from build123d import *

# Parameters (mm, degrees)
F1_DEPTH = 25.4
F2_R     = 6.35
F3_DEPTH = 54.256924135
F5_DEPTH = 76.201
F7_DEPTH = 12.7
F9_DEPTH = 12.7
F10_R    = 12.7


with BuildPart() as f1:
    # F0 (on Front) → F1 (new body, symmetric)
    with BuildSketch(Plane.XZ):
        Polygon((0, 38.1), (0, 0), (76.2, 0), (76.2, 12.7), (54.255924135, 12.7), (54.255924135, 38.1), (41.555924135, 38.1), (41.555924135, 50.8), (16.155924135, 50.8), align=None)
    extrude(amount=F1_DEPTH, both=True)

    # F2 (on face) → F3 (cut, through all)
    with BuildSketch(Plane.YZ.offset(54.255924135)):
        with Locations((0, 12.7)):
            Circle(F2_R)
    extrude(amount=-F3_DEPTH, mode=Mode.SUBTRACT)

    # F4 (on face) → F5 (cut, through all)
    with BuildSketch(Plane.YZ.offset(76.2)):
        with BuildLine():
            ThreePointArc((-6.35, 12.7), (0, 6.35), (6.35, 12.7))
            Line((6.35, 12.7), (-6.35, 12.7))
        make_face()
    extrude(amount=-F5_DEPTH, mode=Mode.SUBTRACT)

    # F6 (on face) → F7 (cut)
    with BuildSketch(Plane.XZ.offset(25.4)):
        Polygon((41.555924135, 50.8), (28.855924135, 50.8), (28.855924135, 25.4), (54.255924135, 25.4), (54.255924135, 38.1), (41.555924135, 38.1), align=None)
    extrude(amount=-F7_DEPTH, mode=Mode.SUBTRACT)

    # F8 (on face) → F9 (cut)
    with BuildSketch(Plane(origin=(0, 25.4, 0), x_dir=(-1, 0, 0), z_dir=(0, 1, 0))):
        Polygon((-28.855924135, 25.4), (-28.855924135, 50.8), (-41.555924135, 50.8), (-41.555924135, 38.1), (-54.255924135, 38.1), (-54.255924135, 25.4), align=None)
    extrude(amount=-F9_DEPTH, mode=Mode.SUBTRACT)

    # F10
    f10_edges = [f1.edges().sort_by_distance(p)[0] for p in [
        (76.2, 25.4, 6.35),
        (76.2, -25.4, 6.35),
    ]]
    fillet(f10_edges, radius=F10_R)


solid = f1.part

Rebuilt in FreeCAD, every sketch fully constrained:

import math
import FreeCAD as App
import Part
import Sketcher
from FreeCAD import Vector
Q = App.Units.Quantity


def edges_at(feature, points):
    """Names of the edges that pass closest to the given points."""
    edges = feature.Shape.Edges
    near = lambda p: min(range(len(edges)), key=lambda i: edges[i].distToShape(Part.Vertex(*p))[0])
    return sorted({f"Edge{near(p) + 1}" for p in points})

doc = App.newDocument("Part")
params = doc.addObject("Spreadsheet::Sheet", "Params")
for row, (alias, value) in enumerate([
    ("sketch1_width", "3 in"),
    ("sketch1_width2", "1 in"),
    ("sketch1_width3", "0.5 in"),
    ("pad1_length", "2 in"),
    ("sketch2_diameter", "0.5 in"),
    ("sketch3_radius", "0.25 in"),
    ("sketch4_width", "1 in"),
    ("pocket3_length", "0.5 in"),
    ("sketch5_width", "1 in"),
    ("pocket4_length", "0.5 in"),
    ("fillet_radius", "0.5 in"),
], start=1):
    params.set(f"A{row}", alias)
    params.set(f"B{row}", "=" + value)
    params.setAlias(f"B{row}", alias)

body = doc.addObject("PartDesign::Body", "Body")

# Sketch on XZ plane
sketch1 = body.newObject("Sketcher::SketchObject", "Sketch")
sketch1.AttachmentSupport = (doc.getObject("XZ_Plane"), [""])
sketch1.MapMode = "FlatFace"
sketch1.addGeometry(Part.LineSegment(Vector(0, 38, 0), Vector(0, 0, 0)), False)
sketch1.addGeometry(Part.LineSegment(Vector(0, 0, 0), Vector(76, 0, 0)), False)
sketch1.addGeometry(Part.LineSegment(Vector(76, 0, 0), Vector(76, 13, 0)), False)
sketch1.addGeometry(Part.LineSegment(Vector(76, 13, 0), Vector(54, 13, 0)), False)
sketch1.addGeometry(Part.LineSegment(Vector(54, 13, 0), Vector(54, 38, 0)), False)
sketch1.addGeometry(Part.LineSegment(Vector(54, 38, 0), Vector(42, 38, 0)), False)
sketch1.addGeometry(Part.LineSegment(Vector(42, 38, 0), Vector(42, 51, 0)), False)
sketch1.addGeometry(Part.LineSegment(Vector(42, 51, 0), Vector(16, 51, 0)), False)
sketch1.addGeometry(Part.LineSegment(Vector(16, 51, 0), Vector(0, 38, 0)), False)
sketch1.addConstraint(Sketcher.Constraint("Coincident", 0, 2, 1, 1))
sketch1.addConstraint(Sketcher.Constraint("Coincident", 1, 2, 2, 1))
sketch1.addConstraint(Sketcher.Constraint("Coincident", 2, 2, 3, 1))
sketch1.addConstraint(Sketcher.Constraint("Coincident", 3, 2, 4, 1))
sketch1.addConstraint(Sketcher.Constraint("Coincident", 4, 2, 5, 1))
sketch1.addConstraint(Sketcher.Constraint("Coincident", 5, 2, 6, 1))
sketch1.addConstraint(Sketcher.Constraint("Coincident", 6, 2, 7, 1))
sketch1.addConstraint(Sketcher.Constraint("Coincident", 7, 2, 8, 1))
sketch1.addConstraint(Sketcher.Constraint("Coincident", 8, 2, 0, 1))
sketch1.addConstraint(Sketcher.Constraint("Vertical", 0))
sketch1.addConstraint(Sketcher.Constraint("Horizontal", 1))
sketch1.addConstraint(Sketcher.Constraint("Vertical", 2))
sketch1.addConstraint(Sketcher.Constraint("Horizontal", 3))
sketch1.addConstraint(Sketcher.Constraint("Vertical", 4))
sketch1.addConstraint(Sketcher.Constraint("Horizontal", 5))
sketch1.addConstraint(Sketcher.Constraint("Vertical", 6))
sketch1.addConstraint(Sketcher.Constraint("Horizontal", 7))
sketch1.addConstraint(Sketcher.Constraint("Coincident", 0, 2, -1, 1))
sketch1.addConstraint(Sketcher.Constraint("Horizontal", 5, 2, 8, 2))
sketch1.addConstraint(Sketcher.Constraint("Equal", 5, 2))
sketch1.addConstraint(Sketcher.Constraint("Equal", 7, 4))
sketch1.addConstraint(Sketcher.Constraint("Equal", 2, 6))
sketch1.addConstraint(Sketcher.Constraint("DistanceX", 1, 1, 1, 2, Q("3 in")))
sketch1.addConstraint(Sketcher.Constraint("DistanceX", 7, 2, 7, 1, Q("1 in")))
sketch1.addConstraint(Sketcher.Constraint("DistanceX", 5, 2, 5, 1, Q("0.5 in")))
sketch1.addConstraint(Sketcher.Constraint("DistanceX", 3, 2, 3, 1, 21.944076))
sketch1.setExpression("Constraints[22]", "Params.sketch1_width")
sketch1.setExpression("Constraints[23]", "Params.sketch1_width2")
sketch1.setExpression("Constraints[24]", "Params.sketch1_width3")
pad1 = body.newObject("PartDesign::Pad", "Pad")
pad1.Profile = sketch1
pad1.setExpression("Length", "Params.pad1_length")
pad1.Midplane = True

# Sketch on YZ plane
sketch2 = body.newObject("Sketcher::SketchObject", "Sketch001")
sketch2.AttachmentSupport = (doc.getObject("YZ_Plane"), [""])
sketch2.MapMode = "FlatFace"
sketch2.AttachmentOffset = App.Placement(Vector(0, 0, 54.255924), App.Rotation())
sketch2.addGeometry(Part.Circle(Vector(0, 13, 0), Vector(0, 0, 1), 6), False)
sketch2.addConstraint(Sketcher.Constraint("PointOnObject", 0, 3, -2))
sketch2.addConstraint(Sketcher.Constraint("Diameter", 0, Q("0.5 in")))
sketch2.addConstraint(Sketcher.Constraint("DistanceY", -1, 1, 0, 3, Q("0.5 in")))
sketch2.setExpression("Constraints[1]", "Params.sketch2_diameter")
pocket1 = body.newObject("PartDesign::Pocket", "Pocket")
pocket1.Profile = sketch2
pocket1.Type = "ThroughAll"

# Sketch on YZ plane
sketch3 = body.newObject("Sketcher::SketchObject", "Sketch002")
sketch3.AttachmentSupport = (doc.getObject("YZ_Plane"), [""])
sketch3.MapMode = "FlatFace"
sketch3.AttachmentOffset = App.Placement(Vector(0, 0, 3 * 25.4), App.Rotation())
sketch3.addGeometry(Part.ArcOfCircle(Part.Circle(Vector(0, 13, 0), Vector(0, 0, 1), 6), math.radians(180), math.radians(360)), False)
sketch3.addGeometry(Part.LineSegment(Vector(6, 13, 0), Vector(-6, 13, 0)), False)
sketch3.addConstraint(Sketcher.Constraint("Coincident", 0, 1, 1, 2))
sketch3.addConstraint(Sketcher.Constraint("Coincident", 1, 1, 0, 2))
sketch3.addConstraint(Sketcher.Constraint("Horizontal", 1))
sketch3.addConstraint(Sketcher.Constraint("PointOnObject", 0, 3, -2))
sketch3.addConstraint(Sketcher.Constraint("Radius", 0, Q("0.25 in")))
sketch3.addConstraint(Sketcher.Constraint("DistanceY", -1, 1, 0, 3, Q("0.5 in")))
sketch3.addConstraint(Sketcher.Constraint("DistanceY", -1, 1, 0, 1, Q("0.5 in")))
sketch3.setExpression("Constraints[4]", "Params.sketch3_radius")
pocket2 = body.newObject("PartDesign::Pocket", "Pocket001")
pocket2.Profile = sketch3
pocket2.Type = "ThroughAll"

# Sketch on XZ plane
sketch4 = body.newObject("Sketcher::SketchObject", "Sketch003")
sketch4.AttachmentSupport = (doc.getObject("XZ_Plane"), [""])
sketch4.MapMode = "FlatFace"
sketch4.AttachmentOffset = App.Placement(Vector(0, 0, 1 * 25.4), App.Rotation())
sketch4.addGeometry(Part.LineSegment(Vector(42, 51, 0), Vector(29, 51, 0)), False)
sketch4.addGeometry(Part.LineSegment(Vector(29, 51, 0), Vector(29, 25, 0)), False)
sketch4.addGeometry(Part.LineSegment(Vector(29, 25, 0), Vector(54, 25, 0)), False)
sketch4.addGeometry(Part.LineSegment(Vector(54, 25, 0), Vector(54, 38, 0)), False)
sketch4.addGeometry(Part.LineSegment(Vector(54, 38, 0), Vector(42, 38, 0)), False)
sketch4.addGeometry(Part.LineSegment(Vector(42, 38, 0), Vector(42, 51, 0)), False)
sketch4.addConstraint(Sketcher.Constraint("Coincident", 0, 2, 1, 1))
sketch4.addConstraint(Sketcher.Constraint("Coincident", 1, 2, 2, 1))
sketch4.addConstraint(Sketcher.Constraint("Coincident", 2, 2, 3, 1))
sketch4.addConstraint(Sketcher.Constraint("Coincident", 3, 2, 4, 1))
sketch4.addConstraint(Sketcher.Constraint("Coincident", 4, 2, 5, 1))
sketch4.addConstraint(Sketcher.Constraint("Coincident", 5, 2, 0, 1))
sketch4.addConstraint(Sketcher.Constraint("Horizontal", 0))
sketch4.addConstraint(Sketcher.Constraint("Vertical", 1))
sketch4.addConstraint(Sketcher.Constraint("Horizontal", 2))
sketch4.addConstraint(Sketcher.Constraint("Vertical", 3))
sketch4.addConstraint(Sketcher.Constraint("Horizontal", 4))
sketch4.addConstraint(Sketcher.Constraint("Vertical", 5))
sketch4.addConstraint(Sketcher.Constraint("Equal", 0, 4))
sketch4.addConstraint(Sketcher.Constraint("Equal", 2, 1))
sketch4.addConstraint(Sketcher.Constraint("Equal", 4, 3))
sketch4.addConstraint(Sketcher.Constraint("DistanceX", 2, 1, 2, 2, Q("1 in")))
sketch4.addConstraint(Sketcher.Constraint("DistanceY", -1, 1, 0, 2, Q("2 in")))
sketch4.addConstraint(Sketcher.Constraint("DistanceX", -1, 1, 0, 2, 28.855924))
sketch4.setExpression("Constraints[15]", "Params.sketch4_width")
pocket3 = body.newObject("PartDesign::Pocket", "Pocket002")
pocket3.Profile = sketch4
pocket3.setExpression("Length", "Params.pocket3_length")

# Sketch on XZ plane
sketch5 = body.newObject("Sketcher::SketchObject", "Sketch004")
sketch5.AttachmentSupport = (doc.getObject("XZ_Plane"), [""])
sketch5.MapMode = "FlatFace"
sketch5.AttachmentOffset = App.Placement(Vector(0, 0, -1 * 25.4), App.Rotation())
sketch5.addGeometry(Part.LineSegment(Vector(29, 25, 0), Vector(29, 51, 0)), False)
sketch5.addGeometry(Part.LineSegment(Vector(29, 51, 0), Vector(42, 51, 0)), False)
sketch5.addGeometry(Part.LineSegment(Vector(42, 51, 0), Vector(42, 38, 0)), False)
sketch5.addGeometry(Part.LineSegment(Vector(42, 38, 0), Vector(54, 38, 0)), False)
sketch5.addGeometry(Part.LineSegment(Vector(54, 38, 0), Vector(54, 25, 0)), False)
sketch5.addGeometry(Part.LineSegment(Vector(54, 25, 0), Vector(29, 25, 0)), False)
sketch5.addConstraint(Sketcher.Constraint("Coincident", 0, 2, 1, 1))
sketch5.addConstraint(Sketcher.Constraint("Coincident", 1, 2, 2, 1))
sketch5.addConstraint(Sketcher.Constraint("Coincident", 2, 2, 3, 1))
sketch5.addConstraint(Sketcher.Constraint("Coincident", 3, 2, 4, 1))
sketch5.addConstraint(Sketcher.Constraint("Coincident", 4, 2, 5, 1))
sketch5.addConstraint(Sketcher.Constraint("Coincident", 5, 2, 0, 1))
sketch5.addConstraint(Sketcher.Constraint("Vertical", 0))
sketch5.addConstraint(Sketcher.Constraint("Horizontal", 1))
sketch5.addConstraint(Sketcher.Constraint("Vertical", 2))
sketch5.addConstraint(Sketcher.Constraint("Horizontal", 3))
sketch5.addConstraint(Sketcher.Constraint("Vertical", 4))
sketch5.addConstraint(Sketcher.Constraint("Horizontal", 5))
sketch5.addConstraint(Sketcher.Constraint("Equal", 1, 3))
sketch5.addConstraint(Sketcher.Constraint("Equal", 5, 0))
sketch5.addConstraint(Sketcher.Constraint("Equal", 3, 2))
sketch5.addConstraint(Sketcher.Constraint("DistanceX", 5, 2, 5, 1, Q("1 in")))
sketch5.addConstraint(Sketcher.Constraint("DistanceY", -1, 1, 0, 2, Q("2 in")))
sketch5.addConstraint(Sketcher.Constraint("DistanceX", -1, 1, 0, 2, 28.855924))
sketch5.setExpression("Constraints[15]", "Params.sketch5_width")
pocket4 = body.newObject("PartDesign::Pocket", "Pocket003")
pocket4.Profile = sketch5
pocket4.setExpression("Length", "Params.pocket4_length")
pocket4.Reversed = True
doc.recompute()

fillet = body.newObject("PartDesign::Fillet", "Fillet")
fillet.Base = (pocket4, edges_at(pocket4, [(76.2, 25.4, 6.35), (76.2, -25.4, 6.35)]))
fillet.setExpression("Radius", "Params.fillet_radius")

doc.recompute()
